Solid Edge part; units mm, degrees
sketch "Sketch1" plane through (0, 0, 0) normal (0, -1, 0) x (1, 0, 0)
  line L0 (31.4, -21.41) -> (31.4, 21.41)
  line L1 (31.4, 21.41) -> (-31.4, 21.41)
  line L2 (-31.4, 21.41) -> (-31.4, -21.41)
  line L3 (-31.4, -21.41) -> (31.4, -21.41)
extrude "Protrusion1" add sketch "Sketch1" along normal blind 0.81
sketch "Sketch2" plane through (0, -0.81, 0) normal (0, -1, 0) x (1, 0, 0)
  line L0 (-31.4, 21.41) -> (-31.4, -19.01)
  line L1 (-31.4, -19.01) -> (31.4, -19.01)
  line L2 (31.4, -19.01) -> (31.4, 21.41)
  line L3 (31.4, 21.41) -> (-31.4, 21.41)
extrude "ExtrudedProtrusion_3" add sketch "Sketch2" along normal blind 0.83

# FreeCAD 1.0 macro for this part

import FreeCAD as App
import Part
import Sketcher

V = App.Vector
Q = App.Units.Quantity

doc = App.newDocument("Part")
params = doc.addObject("Spreadsheet::Sheet", "Params")
for row, (alias, value) in enumerate([
    ("sketch1_width", "62.8 mm"),
    ("sketch1_height", "42.82 mm"),
    ("pad1_length", "0.81 mm"),
    ("sketch2_width", "62.8 mm"),
    ("sketch2_height", "40.42 mm"),
    ("pad2_length", "0.83 mm"),
], start=1):
    params.set(f"A{row}", alias)
    params.set(f"B{row}", "=" + value)
    params.setAlias(f"B{row}", alias)

body = doc.addObject("PartDesign::Body", "Body")

sketch1 = doc.addObject("Sketcher::SketchObject", "Sketch")
body.addObject(sketch1)
sketch1.AttachmentSupport = (doc.XZ_Plane, [""])
sketch1.MapMode = "FlatFace"
sketch1.addGeometry(Part.LineSegment(V(-31, -21, 0), V(31, -21, 0)), False)
sketch1.addGeometry(Part.LineSegment(V(31, -21, 0), V(31, 21, 0)), False)
sketch1.addGeometry(Part.LineSegment(V(31, 21, 0), V(-31, 21, 0)), False)
sketch1.addGeometry(Part.LineSegment(V(-31, 21, 0), V(-31, -21, 0)), False)
sketch1.addConstraint(Sketcher.Constraint("Coincident", 0, 2, 1, 1))
sketch1.addConstraint(Sketcher.Constraint("Coincident", 1, 2, 2, 1))
sketch1.addConstraint(Sketcher.Constraint("Coincident", 2, 2, 3, 1))
sketch1.addConstraint(Sketcher.Constraint("Coincident", 3, 2, 0, 1))
sketch1.addConstraint(Sketcher.Constraint("Horizontal", 0))
sketch1.addConstraint(Sketcher.Constraint("Vertical", 1))
sketch1.addConstraint(Sketcher.Constraint("Horizontal", 2))
sketch1.addConstraint(Sketcher.Constraint("Vertical", 3))
sketch1.addConstraint(Sketcher.Constraint("Symmetric", 0, 2, 2, 2, -1, 1))
sketch1.addConstraint(Sketcher.Constraint("DistanceX", 0, 1, 0, 2, Q("62.8 mm")))
sketch1.addConstraint(Sketcher.Constraint("DistanceY", 1, 1, 1, 2, Q("42.82 mm")))
sketch1.setExpression("Constraints[9]", "Params.sketch1_width")
sketch1.setExpression("Constraints[10]", "Params.sketch1_height")
pad1 = doc.addObject("PartDesign::Pad", "Pad")
body.addObject(pad1)
pad1.Profile = sketch1
pad1.setExpression("Length", "Params.pad1_length")

sketch2 = doc.addObject("Sketcher::SketchObject", "Sketch001")
body.addObject(sketch2)
sketch2.AttachmentSupport = (doc.XZ_Plane, [""])
sketch2.MapMode = "FlatFace"
sketch2.AttachmentOffset = App.Placement(V(0, 0, 0.81), App.Rotation())
sketch2.addGeometry(Part.LineSegment(V(31, 21, 0), V(-31, 21, 0)), False)
sketch2.addGeometry(Part.LineSegment(V(-31, 21, 0), V(-31, -19, 0)), False)
sketch2.addGeometry(Part.LineSegment(V(-31, -19, 0), V(31, -19, 0)), False)
sketch2.addGeometry(Part.LineSegment(V(31, -19, 0), V(31, 21, 0)), False)
sketch2.addConstraint(Sketcher.Constraint("Coincident", 0, 2, 1, 1))
sketch2.addConstraint(Sketcher.Constraint("Coincident", 1, 2, 2, 1))
sketch2.addConstraint(Sketcher.Constraint("Coincident", 2, 2, 3, 1))
sketch2.addConstraint(Sketcher.Constraint("Coincident", 3, 2, 0, 1))
sketch2.addConstraint(Sketcher.Constraint("Horizontal", 0))
sketch2.addConstraint(Sketcher.Constraint("Vertical", 1))
sketch2.addConstraint(Sketcher.Constraint("Horizontal", 2))
sketch2.addConstraint(Sketcher.Constraint("Vertical", 3))
sketch2.addConstraint(Sketcher.Constraint("DistanceX", 0, 2, 0, 1, Q("62.8 mm")))
sketch2.addConstraint(Sketcher.Constraint("DistanceY", 1, 2, 1, 1, Q("40.42 mm")))
sketch2.addConstraint(Sketcher.Constraint("DistanceX", 0, 2, -1, 1, Q("31.4 mm")))
sketch2.addConstraint(Sketcher.Constraint("DistanceY", -1, 1, 0, 2, Q("21.41 mm")))
sketch2.setExpression("Constraints[8]", "Params.sketch2_width")
sketch2.setExpression("Constraints[9]", "Params.sketch2_height")
pad2 = doc.addObject("PartDesign::Pad", "Pad001")
body.addObject(pad2)
pad2.Profile = sketch2
pad2.setExpression("Length", "Params.pad2_length")

doc.recompute()
